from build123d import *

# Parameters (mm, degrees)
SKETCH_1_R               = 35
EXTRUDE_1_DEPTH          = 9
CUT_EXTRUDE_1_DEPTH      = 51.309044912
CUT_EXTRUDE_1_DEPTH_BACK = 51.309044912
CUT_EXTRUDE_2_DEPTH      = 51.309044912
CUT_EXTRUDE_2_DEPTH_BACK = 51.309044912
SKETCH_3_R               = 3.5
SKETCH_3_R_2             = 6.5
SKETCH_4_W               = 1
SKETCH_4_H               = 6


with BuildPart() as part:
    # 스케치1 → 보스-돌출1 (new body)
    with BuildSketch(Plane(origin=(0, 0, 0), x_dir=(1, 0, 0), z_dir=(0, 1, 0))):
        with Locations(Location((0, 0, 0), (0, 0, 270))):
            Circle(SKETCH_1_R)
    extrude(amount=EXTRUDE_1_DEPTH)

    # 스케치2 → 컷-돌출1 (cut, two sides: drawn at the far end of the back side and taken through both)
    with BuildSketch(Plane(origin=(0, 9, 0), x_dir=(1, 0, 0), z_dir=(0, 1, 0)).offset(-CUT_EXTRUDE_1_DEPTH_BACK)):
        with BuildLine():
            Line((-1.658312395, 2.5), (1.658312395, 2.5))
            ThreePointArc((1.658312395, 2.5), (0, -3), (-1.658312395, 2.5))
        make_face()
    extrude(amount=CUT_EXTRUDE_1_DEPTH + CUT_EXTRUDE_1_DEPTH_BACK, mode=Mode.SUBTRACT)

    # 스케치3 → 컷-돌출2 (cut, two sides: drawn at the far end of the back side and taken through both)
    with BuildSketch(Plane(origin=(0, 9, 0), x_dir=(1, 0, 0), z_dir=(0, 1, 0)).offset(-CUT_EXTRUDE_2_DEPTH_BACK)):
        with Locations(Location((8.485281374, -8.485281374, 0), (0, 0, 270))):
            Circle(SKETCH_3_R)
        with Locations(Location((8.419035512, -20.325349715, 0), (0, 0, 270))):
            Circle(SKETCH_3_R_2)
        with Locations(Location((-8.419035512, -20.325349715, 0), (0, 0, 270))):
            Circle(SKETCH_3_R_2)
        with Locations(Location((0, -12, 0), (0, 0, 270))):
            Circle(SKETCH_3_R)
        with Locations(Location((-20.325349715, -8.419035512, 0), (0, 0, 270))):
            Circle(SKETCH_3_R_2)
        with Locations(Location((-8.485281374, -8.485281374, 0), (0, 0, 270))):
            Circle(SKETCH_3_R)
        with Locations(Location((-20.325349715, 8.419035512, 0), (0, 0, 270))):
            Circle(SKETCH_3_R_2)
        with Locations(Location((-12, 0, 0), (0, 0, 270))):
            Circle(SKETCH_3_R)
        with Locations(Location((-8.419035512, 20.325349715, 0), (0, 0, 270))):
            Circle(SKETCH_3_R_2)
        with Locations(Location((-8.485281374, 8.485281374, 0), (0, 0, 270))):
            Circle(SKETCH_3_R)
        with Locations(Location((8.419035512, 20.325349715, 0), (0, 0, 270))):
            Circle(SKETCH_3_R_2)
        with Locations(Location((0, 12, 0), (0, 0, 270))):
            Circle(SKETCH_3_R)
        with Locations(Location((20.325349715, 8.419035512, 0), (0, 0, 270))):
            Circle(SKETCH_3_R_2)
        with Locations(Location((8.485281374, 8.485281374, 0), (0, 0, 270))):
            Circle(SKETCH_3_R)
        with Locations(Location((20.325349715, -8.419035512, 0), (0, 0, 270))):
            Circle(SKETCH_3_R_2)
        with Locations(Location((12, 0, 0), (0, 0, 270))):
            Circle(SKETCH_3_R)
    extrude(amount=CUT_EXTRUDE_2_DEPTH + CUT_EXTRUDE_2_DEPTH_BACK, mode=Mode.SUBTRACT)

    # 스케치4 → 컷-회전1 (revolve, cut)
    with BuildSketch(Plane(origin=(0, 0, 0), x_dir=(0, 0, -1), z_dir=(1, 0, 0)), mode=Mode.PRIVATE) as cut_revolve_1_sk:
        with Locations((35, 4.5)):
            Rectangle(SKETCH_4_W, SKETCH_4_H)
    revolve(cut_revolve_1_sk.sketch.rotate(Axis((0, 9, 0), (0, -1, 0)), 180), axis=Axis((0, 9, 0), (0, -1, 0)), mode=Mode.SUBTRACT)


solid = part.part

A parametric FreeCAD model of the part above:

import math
import FreeCAD as App
import Part
import Sketcher
from FreeCAD import Vector


def add_polygon(sketch, points):
    """Adds a closed chain of lines whose ends are joined by coincident constraints."""
    first, n = sketch.GeometryCount, len(points)
    for a, b in zip(points, points[1:] + points[:1]):
        sketch.addGeometry(Part.LineSegment(App.Vector(*a, 0), App.Vector(*b, 0)), False)
    for i in range(n):
        sketch.addConstraint(Sketcher.Constraint("Coincident", first + i, 2, first + (i + 1) % n, 1))

doc = App.newDocument("Part")
params = doc.addObject("Spreadsheet::Sheet", "Params")
for row, (alias, value) in enumerate([
    ("sketch1_diameter", "70 mm"),
    ("pad1_length", "9 mm"),
    ("sketch2_radius", "3 mm"),
    ("sketch3_diameter", "7 mm"),
    ("sketch3_diameter2", "13 mm"),
    ("sketch4_width", "6 mm"),
    ("sketch4_height", "1 mm"),
    ("groove_angle", "360 deg"),
], start=1):
    params.set(f"A{row}", alias)
    params.set(f"B{row}", "=" + value)
    params.setAlias(f"B{row}", alias)

body = doc.addObject("PartDesign::Body", "Body")

# Sketch on XZ plane
sketch1 = body.newObject("Sketcher::SketchObject", "Sketch")
sketch1.AttachmentSupport = (doc.getObject("XZ_Plane"), [""])
sketch1.MapMode = "FlatFace"
sketch1.addGeometry(Part.Circle(Vector(0, 0, 0), Vector(0, 0, 1), 35), False)
sketch1.addConstraint([
    Sketcher.Constraint("Coincident", 0, 3, -1, 1),
    Sketcher.Constraint("Diameter", 0, 70.0),
])
sketch1.setExpression("Constraints[1]", "Params.sketch1_diameter")
pad1 = body.newObject("PartDesign::Pad", "Pad")
pad1.Profile = sketch1
pad1.setExpression("Length", "Params.pad1_length")
pad1.Reversed = True

# Sketch on XZ plane
sketch2 = body.newObject("Sketcher::SketchObject", "Sketch001")
sketch2.AttachmentSupport = (doc.getObject("XZ_Plane"), [""])
sketch2.MapMode = "FlatFace"
sketch2.AttachmentOffset = App.Placement(Vector(0, 0, -9), App.Rotation())
sketch2.addGeometry([
    Part.LineSegment(Vector(1.7, -2.5, 0), Vector(-1.7, -2.5, 0)),
    Part.ArcOfCircle(Part.Circle(Vector(0, 0, 0), Vector(0, 0, 1), 3), math.radians(-56), math.radians(236)),
], False)
sketch2.addConstraint([
    Sketcher.Constraint("Coincident", 0, 1, 1, 1),
    Sketcher.Constraint("Coincident", 1, 2, 0, 2),
    Sketcher.Constraint("Horizontal", 0),
    Sketcher.Constraint("Coincident", 1, 3, -1, 1),
    Sketcher.Constraint("Radius", 1, 3.0),
    Sketcher.Constraint("DistanceY", 0, 1, -1, 1, 2.5),
])
sketch2.setExpression("Constraints[4]", "Params.sketch2_radius")
pocket1 = body.newObject("PartDesign::Pocket", "Pocket")
pocket1.Profile = sketch2
pocket1.Type = "ThroughAll"
pocket1.Midplane = True

# Sketch on XZ plane
sketch3 = body.newObject("Sketcher::SketchObject", "Sketch002")
sketch3.AttachmentSupport = (doc.getObject("XZ_Plane"), [""])
sketch3.MapMode = "FlatFace"
sketch3.AttachmentOffset = App.Placement(Vector(0, 0, -9), App.Rotation())
sketch3.addGeometry([
    Part.Circle(Vector(8.5, 8.5, 0), Vector(0, 0, 1), 3.5),  # 0
    Part.Circle(Vector(8.4, 20.3, 0), Vector(0, 0, 1), 6.5),  # 1
    Part.Circle(Vector(-8.4, 20.3, 0), Vector(0, 0, 1), 6.5),  # 2
    Part.Circle(Vector(0, 12, 0), Vector(0, 0, 1), 3.5),  # 3
    Part.Circle(Vector(-20.3, 8.4, 0), Vector(0, 0, 1), 6.5),  # 4
    Part.Circle(Vector(-8.5, 8.5, 0), Vector(0, 0, 1), 3.5),  # 5
    Part.Circle(Vector(-20.3, -8.4, 0), Vector(0, 0, 1), 6.5),  # 6
    Part.Circle(Vector(-12, 0, 0), Vector(0, 0, 1), 3.5),  # 7
    Part.Circle(Vector(-8.4, -20.3, 0), Vector(0, 0, 1), 6.5),  # 8
    Part.Circle(Vector(-8.5, -8.5, 0), Vector(0, 0, 1), 3.5),  # 9
    Part.Circle(Vector(8.4, -20.3, 0), Vector(0, 0, 1), 6.5),  # 10
    Part.Circle(Vector(0, -12, 0), Vector(0, 0, 1), 3.5),  # 11
    Part.Circle(Vector(20.3, -8.4, 0), Vector(0, 0, 1), 6.5),  # 12
    Part.Circle(Vector(8.5, -8.5, 0), Vector(0, 0, 1), 3.5),  # 13
    Part.Circle(Vector(20.3, 8.4, 0), Vector(0, 0, 1), 6.5),  # 14
    Part.Circle(Vector(12, 0, 0), Vector(0, 0, 1), 3.5),  # 15
], False)
sketch3.addConstraint([
    Sketcher.Constraint("Equal", 1, 2),
    Sketcher.Constraint("Equal", 0, 3),
    Sketcher.Constraint("Equal", 2, 4),
    Sketcher.Constraint("Equal", 3, 5),
    Sketcher.Constraint("Equal", 4, 6),
    Sketcher.Constraint("Equal", 5, 7),
    Sketcher.Constraint("Equal", 6, 8),
    Sketcher.Constraint("Equal", 7, 9),
    Sketcher.Constraint("Equal", 8, 10),
    Sketcher.Constraint("Equal", 9, 11),
    Sketcher.Constraint("Equal", 10, 12),
    Sketcher.Constraint("Equal", 11, 13),
    Sketcher.Constraint("Equal", 12, 14),
    Sketcher.Constraint("Equal", 13, 15),
    Sketcher.Constraint("Symmetric", 1, 3, 8, 3, -1, 1),
    Sketcher.Constraint("Symmetric", 0, 3, 9, 3, -1, 1),
    Sketcher.Constraint("Symmetric", 2, 3, 10, 3, -1, 1),
    Sketcher.Constraint("Symmetric", 3, 3, 11, 3, -1, 1),
    Sketcher.Constraint("Symmetric", 4, 3, 12, 3, -1, 1),
    Sketcher.Constraint("Symmetric", 5, 3, 13, 3, -1, 1),
    Sketcher.Constraint("Symmetric", 6, 3, 14, 3, -1, 1),
    Sketcher.Constraint("Symmetric", 7, 3, 15, 3, -1, 1),
    Sketcher.Constraint("Symmetric", 1, 3, 2, 3, -2),
    Sketcher.Constraint("Symmetric", 0, 3, 5, 3, -2),
    Sketcher.Constraint("Symmetric", 6, 3, 12, 3, -2),
    Sketcher.Constraint("PointOnObject", 3, 3, -2),
    Sketcher.Constraint("PointOnObject", 7, 3, -1),
    Sketcher.Constraint("Diameter", 0, 7.0),
    Sketcher.Constraint("Diameter", 1, 13.0),
    Sketcher.Constraint("DistanceY", -1, 1, 3, 3, 12.0),
    Sketcher.Constraint("DistanceX", 7, 3, -1, 1, 12.0),
    Sketcher.Constraint("DistanceX", -1, 1, 0, 3, 8.485281),
    Sketcher.Constraint("DistanceY", -1, 1, 0, 3, 8.485281),
    Sketcher.Constraint("DistanceY", -1, 1, 1, 3, 20.32535),
    Sketcher.Constraint("DistanceX", 4, 3, -1, 1, 20.32535),
    Sketcher.Constraint("DistanceX", 2, 3, 1, 3, 16.838071),
    Sketcher.Constraint("DistanceY", 6, 3, 4, 3, 16.838071),
])
sketch3.setExpression("Constraints[27]", "Params.sketch3_diameter")
sketch3.setExpression("Constraints[28]", "Params.sketch3_diameter2")
pocket2 = body.newObject("PartDesign::Pocket", "Pocket001")
pocket2.Profile = sketch3
pocket2.Type = "ThroughAll"
pocket2.Midplane = True

# Sketch on YZ plane
sketch4 = body.newObject("Sketcher::SketchObject", "Sketch003")
sketch4.AttachmentSupport = (doc.getObject("YZ_Plane"), [""])
sketch4.MapMode = "FlatFace"
add_polygon(sketch4, [(7.5, -34.5), (1.5, -34.5), (1.5, -35.5), (7.5, -35.5)])  # lines 0-3
sketch4.addConstraint([
    Sketcher.Constraint("Horizontal", 0),
    Sketcher.Constraint("Vertical", 1),
    Sketcher.Constraint("Horizontal", 2),
    Sketcher.Constraint("Vertical", 3),
    Sketcher.Constraint("DistanceX", 0, 2, 0, 1, 6.0),
    Sketcher.Constraint("DistanceY", 1, 2, 1, 1, 1.0),
    Sketcher.Constraint("DistanceX", -1, 1, 0, 2, 1.5),
    Sketcher.Constraint("DistanceY", 0, 2, -1, 1, 34.5),
])
sketch4.setExpression("Constraints[8]", "Params.sketch4_width")
sketch4.setExpression("Constraints[9]", "Params.sketch4_height")
groove = body.newObject("PartDesign::Groove", "Groove")
groove.Profile = sketch4
groove.ReferenceAxis = (sketch4, ["H_Axis"])
groove.setExpression("Angle", "Params.groove_angle")

doc.recompute()
